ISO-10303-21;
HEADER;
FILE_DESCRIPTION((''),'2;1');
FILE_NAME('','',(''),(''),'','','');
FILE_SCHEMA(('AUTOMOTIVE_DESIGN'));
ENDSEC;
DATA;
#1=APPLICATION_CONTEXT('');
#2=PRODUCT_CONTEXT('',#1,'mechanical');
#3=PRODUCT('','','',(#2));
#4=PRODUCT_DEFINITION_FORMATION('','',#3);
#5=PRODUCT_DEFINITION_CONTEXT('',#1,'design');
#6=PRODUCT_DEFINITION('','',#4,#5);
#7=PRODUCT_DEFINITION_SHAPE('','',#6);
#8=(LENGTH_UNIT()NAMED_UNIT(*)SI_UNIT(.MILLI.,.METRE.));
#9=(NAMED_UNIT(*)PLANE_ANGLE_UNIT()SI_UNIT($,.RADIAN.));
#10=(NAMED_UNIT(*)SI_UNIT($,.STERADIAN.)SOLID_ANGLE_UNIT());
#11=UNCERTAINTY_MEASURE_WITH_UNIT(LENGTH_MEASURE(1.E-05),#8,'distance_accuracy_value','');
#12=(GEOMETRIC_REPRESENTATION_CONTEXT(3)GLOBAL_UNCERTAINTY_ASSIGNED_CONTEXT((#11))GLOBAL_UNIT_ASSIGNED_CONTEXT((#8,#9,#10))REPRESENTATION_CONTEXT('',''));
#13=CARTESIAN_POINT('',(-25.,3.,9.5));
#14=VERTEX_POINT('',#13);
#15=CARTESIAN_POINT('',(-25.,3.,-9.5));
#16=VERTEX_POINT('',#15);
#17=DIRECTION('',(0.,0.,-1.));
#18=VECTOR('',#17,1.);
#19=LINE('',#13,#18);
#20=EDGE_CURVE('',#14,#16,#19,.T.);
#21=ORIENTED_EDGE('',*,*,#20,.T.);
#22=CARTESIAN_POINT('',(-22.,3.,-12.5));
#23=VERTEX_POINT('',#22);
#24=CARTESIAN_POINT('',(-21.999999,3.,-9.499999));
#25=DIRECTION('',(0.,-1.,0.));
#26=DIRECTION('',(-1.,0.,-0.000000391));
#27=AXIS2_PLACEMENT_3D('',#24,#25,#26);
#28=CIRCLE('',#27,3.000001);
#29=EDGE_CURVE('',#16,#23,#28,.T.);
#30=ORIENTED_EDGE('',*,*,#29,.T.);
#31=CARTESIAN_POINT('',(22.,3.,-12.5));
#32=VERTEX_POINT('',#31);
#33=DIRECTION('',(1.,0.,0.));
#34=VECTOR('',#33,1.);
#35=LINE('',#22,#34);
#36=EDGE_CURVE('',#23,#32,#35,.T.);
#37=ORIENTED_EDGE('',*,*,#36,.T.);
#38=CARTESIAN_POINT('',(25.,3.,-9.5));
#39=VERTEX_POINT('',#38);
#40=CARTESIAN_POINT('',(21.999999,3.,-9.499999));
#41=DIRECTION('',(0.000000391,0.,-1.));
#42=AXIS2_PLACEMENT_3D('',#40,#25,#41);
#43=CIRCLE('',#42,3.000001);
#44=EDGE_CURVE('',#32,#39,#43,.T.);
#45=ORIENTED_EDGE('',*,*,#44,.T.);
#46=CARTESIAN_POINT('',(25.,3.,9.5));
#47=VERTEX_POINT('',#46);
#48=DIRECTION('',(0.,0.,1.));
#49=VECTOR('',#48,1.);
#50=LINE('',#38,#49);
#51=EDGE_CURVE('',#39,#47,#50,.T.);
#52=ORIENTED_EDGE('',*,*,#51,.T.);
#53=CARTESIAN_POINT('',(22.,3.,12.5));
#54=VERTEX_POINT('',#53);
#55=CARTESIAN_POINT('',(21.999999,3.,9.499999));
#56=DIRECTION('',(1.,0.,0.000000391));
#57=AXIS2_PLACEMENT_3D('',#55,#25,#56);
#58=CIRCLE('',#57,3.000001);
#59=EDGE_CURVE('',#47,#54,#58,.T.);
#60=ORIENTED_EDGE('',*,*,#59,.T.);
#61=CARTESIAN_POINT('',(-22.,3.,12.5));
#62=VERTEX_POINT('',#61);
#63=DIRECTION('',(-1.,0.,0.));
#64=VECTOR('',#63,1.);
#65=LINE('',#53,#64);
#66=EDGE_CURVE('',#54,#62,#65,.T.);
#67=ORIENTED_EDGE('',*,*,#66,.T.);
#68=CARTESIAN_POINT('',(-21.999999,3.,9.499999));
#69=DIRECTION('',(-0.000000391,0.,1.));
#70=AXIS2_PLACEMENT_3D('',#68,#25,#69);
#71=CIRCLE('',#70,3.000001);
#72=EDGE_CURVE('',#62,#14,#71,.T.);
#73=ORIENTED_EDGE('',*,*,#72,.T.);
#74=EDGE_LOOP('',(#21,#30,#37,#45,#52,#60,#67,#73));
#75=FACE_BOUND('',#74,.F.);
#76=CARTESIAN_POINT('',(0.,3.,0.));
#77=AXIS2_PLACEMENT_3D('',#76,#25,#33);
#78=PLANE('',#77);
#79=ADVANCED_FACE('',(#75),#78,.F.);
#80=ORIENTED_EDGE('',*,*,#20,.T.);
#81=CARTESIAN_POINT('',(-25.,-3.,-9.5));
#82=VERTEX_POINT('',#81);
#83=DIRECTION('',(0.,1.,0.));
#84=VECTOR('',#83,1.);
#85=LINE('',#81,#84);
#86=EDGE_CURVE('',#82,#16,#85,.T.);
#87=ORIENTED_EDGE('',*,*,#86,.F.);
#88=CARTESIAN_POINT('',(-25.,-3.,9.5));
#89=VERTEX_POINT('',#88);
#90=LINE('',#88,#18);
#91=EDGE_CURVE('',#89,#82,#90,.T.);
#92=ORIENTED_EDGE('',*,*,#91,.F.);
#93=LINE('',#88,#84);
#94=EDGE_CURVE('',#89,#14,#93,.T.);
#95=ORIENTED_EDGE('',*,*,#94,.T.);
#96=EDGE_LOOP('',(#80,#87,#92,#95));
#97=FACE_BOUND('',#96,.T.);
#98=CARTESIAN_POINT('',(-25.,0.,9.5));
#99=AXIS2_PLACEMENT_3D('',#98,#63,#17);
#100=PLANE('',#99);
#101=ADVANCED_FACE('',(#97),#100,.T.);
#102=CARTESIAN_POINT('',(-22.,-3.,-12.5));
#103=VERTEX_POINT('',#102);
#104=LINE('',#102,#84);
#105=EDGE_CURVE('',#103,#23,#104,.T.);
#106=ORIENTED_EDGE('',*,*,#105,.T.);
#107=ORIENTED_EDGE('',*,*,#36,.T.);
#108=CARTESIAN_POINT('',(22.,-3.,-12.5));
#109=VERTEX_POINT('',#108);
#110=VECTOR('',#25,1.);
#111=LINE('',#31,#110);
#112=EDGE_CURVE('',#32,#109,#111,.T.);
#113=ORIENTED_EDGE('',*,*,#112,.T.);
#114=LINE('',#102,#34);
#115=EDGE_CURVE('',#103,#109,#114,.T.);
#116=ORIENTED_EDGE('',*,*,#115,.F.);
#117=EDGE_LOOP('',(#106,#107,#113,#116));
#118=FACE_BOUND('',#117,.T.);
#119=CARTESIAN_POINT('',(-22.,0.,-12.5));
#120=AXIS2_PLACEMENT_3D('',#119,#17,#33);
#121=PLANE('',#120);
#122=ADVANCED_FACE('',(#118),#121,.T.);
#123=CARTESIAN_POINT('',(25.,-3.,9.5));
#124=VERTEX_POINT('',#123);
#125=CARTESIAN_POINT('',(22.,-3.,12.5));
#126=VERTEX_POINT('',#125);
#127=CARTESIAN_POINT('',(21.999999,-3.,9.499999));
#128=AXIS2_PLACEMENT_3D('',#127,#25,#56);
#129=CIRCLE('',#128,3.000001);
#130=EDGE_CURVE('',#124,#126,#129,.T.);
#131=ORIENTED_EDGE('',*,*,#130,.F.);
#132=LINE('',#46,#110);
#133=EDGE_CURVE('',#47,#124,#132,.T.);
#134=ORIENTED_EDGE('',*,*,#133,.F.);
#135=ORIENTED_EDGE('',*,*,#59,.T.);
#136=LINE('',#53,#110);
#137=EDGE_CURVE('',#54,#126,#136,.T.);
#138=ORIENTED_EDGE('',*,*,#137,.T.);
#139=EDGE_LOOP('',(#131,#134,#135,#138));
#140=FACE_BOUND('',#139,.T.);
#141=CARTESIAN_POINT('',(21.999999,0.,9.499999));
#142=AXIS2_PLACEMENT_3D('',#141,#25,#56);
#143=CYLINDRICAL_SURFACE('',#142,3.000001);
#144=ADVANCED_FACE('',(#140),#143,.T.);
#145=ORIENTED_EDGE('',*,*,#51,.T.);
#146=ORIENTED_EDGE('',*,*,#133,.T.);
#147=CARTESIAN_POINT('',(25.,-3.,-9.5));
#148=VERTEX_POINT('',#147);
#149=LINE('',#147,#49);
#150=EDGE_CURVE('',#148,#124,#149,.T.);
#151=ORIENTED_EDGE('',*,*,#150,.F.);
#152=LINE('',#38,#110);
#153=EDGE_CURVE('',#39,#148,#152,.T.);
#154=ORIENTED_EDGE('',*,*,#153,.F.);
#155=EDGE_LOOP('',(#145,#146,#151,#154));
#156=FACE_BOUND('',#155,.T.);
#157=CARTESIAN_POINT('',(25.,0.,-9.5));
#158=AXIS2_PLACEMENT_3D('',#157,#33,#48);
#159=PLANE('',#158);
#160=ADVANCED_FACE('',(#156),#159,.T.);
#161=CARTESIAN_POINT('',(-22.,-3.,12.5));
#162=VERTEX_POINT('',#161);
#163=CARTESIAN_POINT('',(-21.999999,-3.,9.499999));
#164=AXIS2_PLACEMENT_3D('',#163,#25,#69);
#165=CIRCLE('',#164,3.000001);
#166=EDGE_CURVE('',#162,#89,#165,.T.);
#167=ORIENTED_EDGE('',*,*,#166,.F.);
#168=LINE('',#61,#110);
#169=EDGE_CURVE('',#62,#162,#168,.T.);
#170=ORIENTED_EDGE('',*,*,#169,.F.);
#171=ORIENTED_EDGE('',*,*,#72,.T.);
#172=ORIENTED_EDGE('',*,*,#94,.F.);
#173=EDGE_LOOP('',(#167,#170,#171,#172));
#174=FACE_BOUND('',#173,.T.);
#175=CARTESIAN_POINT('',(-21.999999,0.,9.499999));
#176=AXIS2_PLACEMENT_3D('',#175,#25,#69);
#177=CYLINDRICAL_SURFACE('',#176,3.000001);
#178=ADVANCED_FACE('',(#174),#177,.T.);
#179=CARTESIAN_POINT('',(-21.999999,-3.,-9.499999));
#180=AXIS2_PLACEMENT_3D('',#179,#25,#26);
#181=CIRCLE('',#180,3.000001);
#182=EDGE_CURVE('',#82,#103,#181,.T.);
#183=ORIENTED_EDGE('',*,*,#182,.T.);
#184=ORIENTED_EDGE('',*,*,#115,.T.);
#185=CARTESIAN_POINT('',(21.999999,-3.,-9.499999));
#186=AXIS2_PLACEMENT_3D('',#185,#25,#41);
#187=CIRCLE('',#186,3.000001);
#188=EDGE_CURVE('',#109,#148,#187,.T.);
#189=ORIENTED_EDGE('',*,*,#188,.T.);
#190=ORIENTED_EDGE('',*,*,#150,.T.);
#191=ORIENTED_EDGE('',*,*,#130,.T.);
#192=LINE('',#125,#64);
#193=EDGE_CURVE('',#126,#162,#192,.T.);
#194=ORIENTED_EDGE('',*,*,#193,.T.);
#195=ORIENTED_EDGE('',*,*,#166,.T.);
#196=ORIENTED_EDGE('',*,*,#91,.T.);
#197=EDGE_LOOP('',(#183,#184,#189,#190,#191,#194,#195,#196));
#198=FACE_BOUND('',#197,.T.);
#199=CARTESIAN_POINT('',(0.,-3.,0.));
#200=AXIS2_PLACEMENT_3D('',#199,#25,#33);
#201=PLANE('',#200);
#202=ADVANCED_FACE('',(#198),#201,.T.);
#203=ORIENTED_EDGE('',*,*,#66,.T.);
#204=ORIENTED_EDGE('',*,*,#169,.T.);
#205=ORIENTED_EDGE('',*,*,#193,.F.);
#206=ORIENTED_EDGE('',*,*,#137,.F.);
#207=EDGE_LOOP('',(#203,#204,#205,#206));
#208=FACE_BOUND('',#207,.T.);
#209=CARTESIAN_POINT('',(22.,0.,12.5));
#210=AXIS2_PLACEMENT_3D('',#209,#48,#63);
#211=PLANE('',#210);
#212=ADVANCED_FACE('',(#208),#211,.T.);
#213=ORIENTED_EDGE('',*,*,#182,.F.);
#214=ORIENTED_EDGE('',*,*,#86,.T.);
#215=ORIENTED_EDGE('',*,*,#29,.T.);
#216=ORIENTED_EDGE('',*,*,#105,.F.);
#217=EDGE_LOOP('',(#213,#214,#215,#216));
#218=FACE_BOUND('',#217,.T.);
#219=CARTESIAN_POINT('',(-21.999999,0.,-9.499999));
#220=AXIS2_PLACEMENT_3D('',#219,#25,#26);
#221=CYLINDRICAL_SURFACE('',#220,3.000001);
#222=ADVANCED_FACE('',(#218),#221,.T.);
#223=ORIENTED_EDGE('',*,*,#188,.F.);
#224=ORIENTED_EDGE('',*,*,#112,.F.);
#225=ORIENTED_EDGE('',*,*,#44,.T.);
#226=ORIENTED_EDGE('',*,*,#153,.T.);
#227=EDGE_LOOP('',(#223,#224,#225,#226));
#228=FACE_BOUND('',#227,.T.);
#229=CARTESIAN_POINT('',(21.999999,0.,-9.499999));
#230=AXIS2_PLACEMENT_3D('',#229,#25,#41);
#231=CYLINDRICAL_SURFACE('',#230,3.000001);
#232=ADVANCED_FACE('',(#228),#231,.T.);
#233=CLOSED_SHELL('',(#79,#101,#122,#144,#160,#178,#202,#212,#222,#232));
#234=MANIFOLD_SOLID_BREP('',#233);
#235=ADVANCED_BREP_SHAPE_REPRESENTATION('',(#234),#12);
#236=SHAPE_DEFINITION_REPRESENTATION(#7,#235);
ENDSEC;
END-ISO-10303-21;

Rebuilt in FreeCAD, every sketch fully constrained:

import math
import FreeCAD as App
import Part
import Sketcher

V = App.Vector

doc = App.newDocument("Part")
body = doc.addObject("PartDesign::Body", "Body")

sketch1 = body.newObject("Sketcher::SketchObject", "Sketch")
sketch1.AttachmentSupport = (doc.getObject("XZ_Plane"), [""])
sketch1.MapMode = "FlatFace"
sketch1.addGeometry(Part.LineSegment(V(-22, -12.5, 0), V(22, -12.5, 0)), False)
sketch1.addGeometry(Part.ArcOfCircle(Part.Circle(V(22, -9.5, 0), V(0, 0, 1), 3), math.radians(-90), math.radians(0)), False)
sketch1.addGeometry(Part.LineSegment(V(25, -9.5, 0), V(25, 9.5, 0)), False)
sketch1.addGeometry(Part.ArcOfCircle(Part.Circle(V(22, 9.5, 0), V(0, 0, 1), 3), math.radians(0), math.radians(90)), False)
sketch1.addGeometry(Part.LineSegment(V(22, 12.5, 0), V(-22, 12.5, 0)), False)
sketch1.addGeometry(Part.ArcOfCircle(Part.Circle(V(-22, 9.5, 0), V(0, 0, 1), 3), math.radians(90), math.radians(180)), False)
sketch1.addGeometry(Part.LineSegment(V(-25, 9.5, 0), V(-25, -9.5, 0)), False)
sketch1.addGeometry(Part.ArcOfCircle(Part.Circle(V(-22, -9.5, 0), V(0, 0, 1), 3), math.radians(-180), math.radians(-90)), False)
sketch1.addConstraint(Sketcher.Constraint("Tangent", 0, 2, 1, 1))
sketch1.addConstraint(Sketcher.Constraint("Tangent", 1, 2, 2, 1))
sketch1.addConstraint(Sketcher.Constraint("Tangent", 2, 2, 3, 1))
sketch1.addConstraint(Sketcher.Constraint("Tangent", 3, 2, 4, 1))
sketch1.addConstraint(Sketcher.Constraint("Tangent", 4, 2, 5, 1))
sketch1.addConstraint(Sketcher.Constraint("Tangent", 5, 2, 6, 1))
sketch1.addConstraint(Sketcher.Constraint("Tangent", 6, 2, 7, 1))
sketch1.addConstraint(Sketcher.Constraint("Tangent", 7, 2, 0, 1))
sketch1.addConstraint(Sketcher.Constraint("Horizontal", 0))
sketch1.addConstraint(Sketcher.Constraint("Vertical", 2))
sketch1.addConstraint(Sketcher.Constraint("Horizontal", 4))
sketch1.addConstraint(Sketcher.Constraint("Vertical", 6))
sketch1.addConstraint(Sketcher.Constraint("Equal", 1, 3))
sketch1.addConstraint(Sketcher.Constraint("Equal", 3, 5))
sketch1.addConstraint(Sketcher.Constraint("Equal", 5, 7))
sketch1.addConstraint(Sketcher.Constraint("Symmetric", 1, 3, 5, 3, -1, 1))
sketch1.addConstraint(Sketcher.Constraint("Radius", 1, 3.000001))
sketch1.addConstraint(Sketcher.Constraint("DistanceX", 0, 1, 0, 2, 44.0))
sketch1.addConstraint(Sketcher.Constraint("DistanceY", 2, 1, 2, 2, 19.0))
pad1 = body.newObject("PartDesign::Pad", "Pad")
pad1.Profile = sketch1
pad1.Length = 6
pad1.Midplane = True

doc.recompute()
